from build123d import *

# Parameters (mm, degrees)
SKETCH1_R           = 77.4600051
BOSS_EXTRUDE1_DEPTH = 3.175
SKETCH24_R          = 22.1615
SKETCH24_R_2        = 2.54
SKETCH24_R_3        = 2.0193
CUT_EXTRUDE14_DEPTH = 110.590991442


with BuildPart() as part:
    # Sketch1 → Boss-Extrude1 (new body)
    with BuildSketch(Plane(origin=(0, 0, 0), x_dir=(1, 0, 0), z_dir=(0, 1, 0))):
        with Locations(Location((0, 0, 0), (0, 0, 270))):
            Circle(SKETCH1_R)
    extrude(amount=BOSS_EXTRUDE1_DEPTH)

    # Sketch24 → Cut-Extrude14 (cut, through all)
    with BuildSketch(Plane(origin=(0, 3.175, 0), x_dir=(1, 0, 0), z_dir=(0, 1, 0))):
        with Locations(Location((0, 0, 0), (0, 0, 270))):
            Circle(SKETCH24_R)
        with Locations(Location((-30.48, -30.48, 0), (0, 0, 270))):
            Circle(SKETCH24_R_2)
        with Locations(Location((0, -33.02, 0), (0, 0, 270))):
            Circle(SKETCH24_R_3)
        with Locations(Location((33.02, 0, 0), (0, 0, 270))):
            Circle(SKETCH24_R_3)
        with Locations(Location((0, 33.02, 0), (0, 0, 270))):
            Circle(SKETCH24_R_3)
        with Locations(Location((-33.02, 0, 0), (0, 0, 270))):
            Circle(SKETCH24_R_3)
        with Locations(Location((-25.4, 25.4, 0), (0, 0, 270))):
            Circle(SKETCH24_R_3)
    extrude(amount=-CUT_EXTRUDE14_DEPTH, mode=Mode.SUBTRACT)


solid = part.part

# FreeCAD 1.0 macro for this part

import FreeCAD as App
import Part
import Sketcher
Q = App.Units.Quantity

doc = App.newDocument("Part")
body = doc.addObject("PartDesign::Body", "Body")

sketch1 = body.newObject("Sketcher::SketchObject", "Sketch")
sketch1.AttachmentSupport = (doc.getObject("XZ_Plane"), [""])
sketch1.MapMode = "FlatFace"
sketch1.addGeometry(Part.Circle(App.Vector(0, 0, 0), App.Vector(0, 0, 1), 77), False)
sketch1.addConstraint([
    Sketcher.Constraint("Coincident", 0, 3, -1, 1),
    Sketcher.Constraint("Diameter", 0, Q("154.92001 mm")),
])
pad1 = body.newObject("PartDesign::Pad", "Pad")
pad1.Profile = sketch1
pad1.Length = Q("0.125 in")
pad1.Reversed = True

sketch2 = body.newObject("Sketcher::SketchObject", "Sketch001")
sketch2.AttachmentSupport = (doc.getObject("XZ_Plane"), [""])
sketch2.MapMode = "FlatFace"
sketch2.AttachmentOffset = App.Placement(App.Vector(0, 0, -0.125 * 25.4), App.Rotation())
sketch2.addGeometry([
    Part.Circle(App.Vector(0, 0, 0), App.Vector(0, 0, 1), 22.2),
    Part.Circle(App.Vector(-30.5, 30.5, 0), App.Vector(0, 0, 1), 2.5),
    Part.Circle(App.Vector(0, 33, 0), App.Vector(0, 0, 1), 2),
    Part.Circle(App.Vector(33, 0, 0), App.Vector(0, 0, 1), 2),
    Part.Circle(App.Vector(0, -33, 0), App.Vector(0, 0, 1), 2),
    Part.Circle(App.Vector(-33, 0, 0), App.Vector(0, 0, 1), 2),
    Part.Circle(App.Vector(-25.4, -25.4, 0), App.Vector(0, 0, 1), 2),
], False)
sketch2.addConstraint([
    Sketcher.Constraint("Coincident", 0, 3, -1, 1),
    Sketcher.Constraint("Equal", 2, 3),
    Sketcher.Constraint("Equal", 3, 4),
    Sketcher.Constraint("Equal", 4, 5),
    Sketcher.Constraint("Equal", 5, 6),
    Sketcher.Constraint("Symmetric", 2, 3, 4, 3, -1, 1),
    Sketcher.Constraint("Symmetric", 3, 3, 5, 3, -1, 1),
    Sketcher.Constraint("PointOnObject", 2, 3, -2),
    Sketcher.Constraint("PointOnObject", 3, 3, -1),
    Sketcher.Constraint("Diameter", 1, Q("0.2 in")),
    Sketcher.Constraint("Diameter", 0, Q("1.745 in")),
    Sketcher.Constraint("Diameter", 2, Q("0.159 in")),
    Sketcher.Constraint("DistanceX", 6, 3, -1, 1, Q("1 in")),
    Sketcher.Constraint("DistanceY", 6, 3, -1, 1, Q("1 in")),
    Sketcher.Constraint("DistanceX", 1, 3, -1, 1, Q("1.2 in")),
    Sketcher.Constraint("DistanceY", -1, 1, 1, 3, Q("1.2 in")),
    Sketcher.Constraint("DistanceY", -1, 1, 2, 3, Q("1.3 in")),
    Sketcher.Constraint("DistanceX", -1, 1, 3, 3, Q("1.3 in")),
])
pocket1 = body.newObject("PartDesign::Pocket", "Pocket")
pocket1.Profile = sketch2
pocket1.Type = "ThroughAll"
pocket1.Reversed = True

doc.recompute()
